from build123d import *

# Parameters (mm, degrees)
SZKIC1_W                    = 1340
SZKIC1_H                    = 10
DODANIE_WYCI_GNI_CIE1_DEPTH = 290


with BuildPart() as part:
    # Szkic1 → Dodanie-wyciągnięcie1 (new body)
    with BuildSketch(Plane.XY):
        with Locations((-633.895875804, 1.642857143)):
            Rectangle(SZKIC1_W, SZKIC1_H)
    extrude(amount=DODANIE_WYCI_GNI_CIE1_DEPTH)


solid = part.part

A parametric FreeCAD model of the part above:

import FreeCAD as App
import Part
import Sketcher

V = App.Vector
Q = App.Units.Quantity


def add_polygon(sketch, points):
    """Adds a closed chain of lines whose ends are joined by coincident constraints."""
    first, n = sketch.GeometryCount, len(points)
    for a, b in zip(points, points[1:] + points[:1]):
        sketch.addGeometry(Part.LineSegment(App.Vector(*a, 0), App.Vector(*b, 0)), False)
    for i in range(n):
        sketch.addConstraint(Sketcher.Constraint("Coincident", first + i, 2, first + (i + 1) % n, 1))

doc = App.newDocument("Part")
body = doc.addObject("PartDesign::Body", "Body")

# Sketch on XY plane
sketch1 = doc.addObject("Sketcher::SketchObject", "Sketch")
body.addObject(sketch1)
sketch1.AttachmentSupport = (doc.XY_Plane, [""])
sketch1.MapMode = "FlatFace"
add_polygon(sketch1, [(-1304, 7), (-1304, -3), (36, -3), (36, 7)])  # lines 0-3
sketch1.addConstraint([
    Sketcher.Constraint("Vertical", 0),
    Sketcher.Constraint("Horizontal", 1),
    Sketcher.Constraint("Vertical", 2),
    Sketcher.Constraint("Horizontal", 3),
    Sketcher.Constraint("DistanceX", 1, 1, 1, 2, Q("1340 mm")),
    Sketcher.Constraint("DistanceY", 0, 2, 0, 1, Q("10 mm")),
    Sketcher.Constraint("DistanceX", 0, 2, -1, 1, Q("1303.895876 mm")),
    Sketcher.Constraint("DistanceY", 0, 2, -1, 1, Q("3.357143 mm")),
])
pad1 = doc.addObject("PartDesign::Pad", "Pad")
body.addObject(pad1)
pad1.Profile = sketch1
pad1.Length = 290

doc.recompute()
